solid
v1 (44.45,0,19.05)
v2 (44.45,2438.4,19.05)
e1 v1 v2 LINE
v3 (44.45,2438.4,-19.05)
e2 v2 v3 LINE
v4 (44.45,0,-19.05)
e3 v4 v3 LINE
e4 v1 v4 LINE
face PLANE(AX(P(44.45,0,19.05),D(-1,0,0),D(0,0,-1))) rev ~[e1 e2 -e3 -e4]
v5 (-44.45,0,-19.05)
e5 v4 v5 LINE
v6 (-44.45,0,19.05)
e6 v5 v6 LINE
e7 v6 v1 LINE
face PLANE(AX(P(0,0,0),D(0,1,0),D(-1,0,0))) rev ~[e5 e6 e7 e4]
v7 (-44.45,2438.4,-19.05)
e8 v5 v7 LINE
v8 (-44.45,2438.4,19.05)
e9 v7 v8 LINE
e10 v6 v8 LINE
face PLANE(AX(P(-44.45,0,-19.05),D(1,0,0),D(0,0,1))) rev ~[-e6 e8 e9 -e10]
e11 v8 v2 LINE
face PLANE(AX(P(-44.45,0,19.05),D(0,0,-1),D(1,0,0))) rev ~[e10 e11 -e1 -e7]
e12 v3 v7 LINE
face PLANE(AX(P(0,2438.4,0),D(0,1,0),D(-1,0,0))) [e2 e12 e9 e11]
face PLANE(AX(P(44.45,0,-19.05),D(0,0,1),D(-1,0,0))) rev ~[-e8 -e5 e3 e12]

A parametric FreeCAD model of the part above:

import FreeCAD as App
import Part
import Sketcher

V = App.Vector
Q = App.Units.Quantity


def add_polygon(sketch, points):
    """Adds a closed chain of lines whose ends are joined by coincident constraints."""
    first, n = sketch.GeometryCount, len(points)
    for a, b in zip(points, points[1:] + points[:1]):
        sketch.addGeometry(Part.LineSegment(App.Vector(*a, 0), App.Vector(*b, 0)), False)
    for i in range(n):
        sketch.addConstraint(Sketcher.Constraint("Coincident", first + i, 2, first + (i + 1) % n, 1))

doc = App.newDocument("Part")
params = doc.addObject("Spreadsheet::Sheet", "Params")
for row, (alias, value) in enumerate([
    ("sketch1_width", "3.5 in"),
    ("sketch1_height", "1.5 in"),
    ("pad1_length", "96 in"),
], start=1):
    params.set(f"A{row}", alias)
    params.set(f"B{row}", "=" + value)
    params.setAlias(f"B{row}", alias)

body = doc.addObject("PartDesign::Body", "Body")

# Sketch on XZ plane
sketch1 = body.newObject("Sketcher::SketchObject", "Sketch")
sketch1.AttachmentSupport = (doc.getObject("XZ_Plane"), [""])
sketch1.MapMode = "FlatFace"
add_polygon(sketch1, [(44.45, 19.05), (44.45, -19.05), (-44.45, -19.05), (-44.45, 19.05)])  # lines 0-3
sketch1.addConstraint([
    Sketcher.Constraint("Vertical", 0),
    Sketcher.Constraint("Horizontal", 1),
    Sketcher.Constraint("Vertical", 2),
    Sketcher.Constraint("Horizontal", 3),
    Sketcher.Constraint("Symmetric", 0, 2, 2, 2, -1, 1),
    Sketcher.Constraint("DistanceX", 1, 2, 1, 1, Q("3.5 in")),
    Sketcher.Constraint("DistanceY", 0, 2, 0, 1, Q("1.5 in")),
])
sketch1.setExpression("Constraints[9]", "Params.sketch1_width")
sketch1.setExpression("Constraints[10]", "Params.sketch1_height")
pad1 = body.newObject("PartDesign::Pad", "Pad")
pad1.Profile = sketch1
pad1.setExpression("Length", "Params.pad1_length")
pad1.Reversed = True

doc.recompute()
